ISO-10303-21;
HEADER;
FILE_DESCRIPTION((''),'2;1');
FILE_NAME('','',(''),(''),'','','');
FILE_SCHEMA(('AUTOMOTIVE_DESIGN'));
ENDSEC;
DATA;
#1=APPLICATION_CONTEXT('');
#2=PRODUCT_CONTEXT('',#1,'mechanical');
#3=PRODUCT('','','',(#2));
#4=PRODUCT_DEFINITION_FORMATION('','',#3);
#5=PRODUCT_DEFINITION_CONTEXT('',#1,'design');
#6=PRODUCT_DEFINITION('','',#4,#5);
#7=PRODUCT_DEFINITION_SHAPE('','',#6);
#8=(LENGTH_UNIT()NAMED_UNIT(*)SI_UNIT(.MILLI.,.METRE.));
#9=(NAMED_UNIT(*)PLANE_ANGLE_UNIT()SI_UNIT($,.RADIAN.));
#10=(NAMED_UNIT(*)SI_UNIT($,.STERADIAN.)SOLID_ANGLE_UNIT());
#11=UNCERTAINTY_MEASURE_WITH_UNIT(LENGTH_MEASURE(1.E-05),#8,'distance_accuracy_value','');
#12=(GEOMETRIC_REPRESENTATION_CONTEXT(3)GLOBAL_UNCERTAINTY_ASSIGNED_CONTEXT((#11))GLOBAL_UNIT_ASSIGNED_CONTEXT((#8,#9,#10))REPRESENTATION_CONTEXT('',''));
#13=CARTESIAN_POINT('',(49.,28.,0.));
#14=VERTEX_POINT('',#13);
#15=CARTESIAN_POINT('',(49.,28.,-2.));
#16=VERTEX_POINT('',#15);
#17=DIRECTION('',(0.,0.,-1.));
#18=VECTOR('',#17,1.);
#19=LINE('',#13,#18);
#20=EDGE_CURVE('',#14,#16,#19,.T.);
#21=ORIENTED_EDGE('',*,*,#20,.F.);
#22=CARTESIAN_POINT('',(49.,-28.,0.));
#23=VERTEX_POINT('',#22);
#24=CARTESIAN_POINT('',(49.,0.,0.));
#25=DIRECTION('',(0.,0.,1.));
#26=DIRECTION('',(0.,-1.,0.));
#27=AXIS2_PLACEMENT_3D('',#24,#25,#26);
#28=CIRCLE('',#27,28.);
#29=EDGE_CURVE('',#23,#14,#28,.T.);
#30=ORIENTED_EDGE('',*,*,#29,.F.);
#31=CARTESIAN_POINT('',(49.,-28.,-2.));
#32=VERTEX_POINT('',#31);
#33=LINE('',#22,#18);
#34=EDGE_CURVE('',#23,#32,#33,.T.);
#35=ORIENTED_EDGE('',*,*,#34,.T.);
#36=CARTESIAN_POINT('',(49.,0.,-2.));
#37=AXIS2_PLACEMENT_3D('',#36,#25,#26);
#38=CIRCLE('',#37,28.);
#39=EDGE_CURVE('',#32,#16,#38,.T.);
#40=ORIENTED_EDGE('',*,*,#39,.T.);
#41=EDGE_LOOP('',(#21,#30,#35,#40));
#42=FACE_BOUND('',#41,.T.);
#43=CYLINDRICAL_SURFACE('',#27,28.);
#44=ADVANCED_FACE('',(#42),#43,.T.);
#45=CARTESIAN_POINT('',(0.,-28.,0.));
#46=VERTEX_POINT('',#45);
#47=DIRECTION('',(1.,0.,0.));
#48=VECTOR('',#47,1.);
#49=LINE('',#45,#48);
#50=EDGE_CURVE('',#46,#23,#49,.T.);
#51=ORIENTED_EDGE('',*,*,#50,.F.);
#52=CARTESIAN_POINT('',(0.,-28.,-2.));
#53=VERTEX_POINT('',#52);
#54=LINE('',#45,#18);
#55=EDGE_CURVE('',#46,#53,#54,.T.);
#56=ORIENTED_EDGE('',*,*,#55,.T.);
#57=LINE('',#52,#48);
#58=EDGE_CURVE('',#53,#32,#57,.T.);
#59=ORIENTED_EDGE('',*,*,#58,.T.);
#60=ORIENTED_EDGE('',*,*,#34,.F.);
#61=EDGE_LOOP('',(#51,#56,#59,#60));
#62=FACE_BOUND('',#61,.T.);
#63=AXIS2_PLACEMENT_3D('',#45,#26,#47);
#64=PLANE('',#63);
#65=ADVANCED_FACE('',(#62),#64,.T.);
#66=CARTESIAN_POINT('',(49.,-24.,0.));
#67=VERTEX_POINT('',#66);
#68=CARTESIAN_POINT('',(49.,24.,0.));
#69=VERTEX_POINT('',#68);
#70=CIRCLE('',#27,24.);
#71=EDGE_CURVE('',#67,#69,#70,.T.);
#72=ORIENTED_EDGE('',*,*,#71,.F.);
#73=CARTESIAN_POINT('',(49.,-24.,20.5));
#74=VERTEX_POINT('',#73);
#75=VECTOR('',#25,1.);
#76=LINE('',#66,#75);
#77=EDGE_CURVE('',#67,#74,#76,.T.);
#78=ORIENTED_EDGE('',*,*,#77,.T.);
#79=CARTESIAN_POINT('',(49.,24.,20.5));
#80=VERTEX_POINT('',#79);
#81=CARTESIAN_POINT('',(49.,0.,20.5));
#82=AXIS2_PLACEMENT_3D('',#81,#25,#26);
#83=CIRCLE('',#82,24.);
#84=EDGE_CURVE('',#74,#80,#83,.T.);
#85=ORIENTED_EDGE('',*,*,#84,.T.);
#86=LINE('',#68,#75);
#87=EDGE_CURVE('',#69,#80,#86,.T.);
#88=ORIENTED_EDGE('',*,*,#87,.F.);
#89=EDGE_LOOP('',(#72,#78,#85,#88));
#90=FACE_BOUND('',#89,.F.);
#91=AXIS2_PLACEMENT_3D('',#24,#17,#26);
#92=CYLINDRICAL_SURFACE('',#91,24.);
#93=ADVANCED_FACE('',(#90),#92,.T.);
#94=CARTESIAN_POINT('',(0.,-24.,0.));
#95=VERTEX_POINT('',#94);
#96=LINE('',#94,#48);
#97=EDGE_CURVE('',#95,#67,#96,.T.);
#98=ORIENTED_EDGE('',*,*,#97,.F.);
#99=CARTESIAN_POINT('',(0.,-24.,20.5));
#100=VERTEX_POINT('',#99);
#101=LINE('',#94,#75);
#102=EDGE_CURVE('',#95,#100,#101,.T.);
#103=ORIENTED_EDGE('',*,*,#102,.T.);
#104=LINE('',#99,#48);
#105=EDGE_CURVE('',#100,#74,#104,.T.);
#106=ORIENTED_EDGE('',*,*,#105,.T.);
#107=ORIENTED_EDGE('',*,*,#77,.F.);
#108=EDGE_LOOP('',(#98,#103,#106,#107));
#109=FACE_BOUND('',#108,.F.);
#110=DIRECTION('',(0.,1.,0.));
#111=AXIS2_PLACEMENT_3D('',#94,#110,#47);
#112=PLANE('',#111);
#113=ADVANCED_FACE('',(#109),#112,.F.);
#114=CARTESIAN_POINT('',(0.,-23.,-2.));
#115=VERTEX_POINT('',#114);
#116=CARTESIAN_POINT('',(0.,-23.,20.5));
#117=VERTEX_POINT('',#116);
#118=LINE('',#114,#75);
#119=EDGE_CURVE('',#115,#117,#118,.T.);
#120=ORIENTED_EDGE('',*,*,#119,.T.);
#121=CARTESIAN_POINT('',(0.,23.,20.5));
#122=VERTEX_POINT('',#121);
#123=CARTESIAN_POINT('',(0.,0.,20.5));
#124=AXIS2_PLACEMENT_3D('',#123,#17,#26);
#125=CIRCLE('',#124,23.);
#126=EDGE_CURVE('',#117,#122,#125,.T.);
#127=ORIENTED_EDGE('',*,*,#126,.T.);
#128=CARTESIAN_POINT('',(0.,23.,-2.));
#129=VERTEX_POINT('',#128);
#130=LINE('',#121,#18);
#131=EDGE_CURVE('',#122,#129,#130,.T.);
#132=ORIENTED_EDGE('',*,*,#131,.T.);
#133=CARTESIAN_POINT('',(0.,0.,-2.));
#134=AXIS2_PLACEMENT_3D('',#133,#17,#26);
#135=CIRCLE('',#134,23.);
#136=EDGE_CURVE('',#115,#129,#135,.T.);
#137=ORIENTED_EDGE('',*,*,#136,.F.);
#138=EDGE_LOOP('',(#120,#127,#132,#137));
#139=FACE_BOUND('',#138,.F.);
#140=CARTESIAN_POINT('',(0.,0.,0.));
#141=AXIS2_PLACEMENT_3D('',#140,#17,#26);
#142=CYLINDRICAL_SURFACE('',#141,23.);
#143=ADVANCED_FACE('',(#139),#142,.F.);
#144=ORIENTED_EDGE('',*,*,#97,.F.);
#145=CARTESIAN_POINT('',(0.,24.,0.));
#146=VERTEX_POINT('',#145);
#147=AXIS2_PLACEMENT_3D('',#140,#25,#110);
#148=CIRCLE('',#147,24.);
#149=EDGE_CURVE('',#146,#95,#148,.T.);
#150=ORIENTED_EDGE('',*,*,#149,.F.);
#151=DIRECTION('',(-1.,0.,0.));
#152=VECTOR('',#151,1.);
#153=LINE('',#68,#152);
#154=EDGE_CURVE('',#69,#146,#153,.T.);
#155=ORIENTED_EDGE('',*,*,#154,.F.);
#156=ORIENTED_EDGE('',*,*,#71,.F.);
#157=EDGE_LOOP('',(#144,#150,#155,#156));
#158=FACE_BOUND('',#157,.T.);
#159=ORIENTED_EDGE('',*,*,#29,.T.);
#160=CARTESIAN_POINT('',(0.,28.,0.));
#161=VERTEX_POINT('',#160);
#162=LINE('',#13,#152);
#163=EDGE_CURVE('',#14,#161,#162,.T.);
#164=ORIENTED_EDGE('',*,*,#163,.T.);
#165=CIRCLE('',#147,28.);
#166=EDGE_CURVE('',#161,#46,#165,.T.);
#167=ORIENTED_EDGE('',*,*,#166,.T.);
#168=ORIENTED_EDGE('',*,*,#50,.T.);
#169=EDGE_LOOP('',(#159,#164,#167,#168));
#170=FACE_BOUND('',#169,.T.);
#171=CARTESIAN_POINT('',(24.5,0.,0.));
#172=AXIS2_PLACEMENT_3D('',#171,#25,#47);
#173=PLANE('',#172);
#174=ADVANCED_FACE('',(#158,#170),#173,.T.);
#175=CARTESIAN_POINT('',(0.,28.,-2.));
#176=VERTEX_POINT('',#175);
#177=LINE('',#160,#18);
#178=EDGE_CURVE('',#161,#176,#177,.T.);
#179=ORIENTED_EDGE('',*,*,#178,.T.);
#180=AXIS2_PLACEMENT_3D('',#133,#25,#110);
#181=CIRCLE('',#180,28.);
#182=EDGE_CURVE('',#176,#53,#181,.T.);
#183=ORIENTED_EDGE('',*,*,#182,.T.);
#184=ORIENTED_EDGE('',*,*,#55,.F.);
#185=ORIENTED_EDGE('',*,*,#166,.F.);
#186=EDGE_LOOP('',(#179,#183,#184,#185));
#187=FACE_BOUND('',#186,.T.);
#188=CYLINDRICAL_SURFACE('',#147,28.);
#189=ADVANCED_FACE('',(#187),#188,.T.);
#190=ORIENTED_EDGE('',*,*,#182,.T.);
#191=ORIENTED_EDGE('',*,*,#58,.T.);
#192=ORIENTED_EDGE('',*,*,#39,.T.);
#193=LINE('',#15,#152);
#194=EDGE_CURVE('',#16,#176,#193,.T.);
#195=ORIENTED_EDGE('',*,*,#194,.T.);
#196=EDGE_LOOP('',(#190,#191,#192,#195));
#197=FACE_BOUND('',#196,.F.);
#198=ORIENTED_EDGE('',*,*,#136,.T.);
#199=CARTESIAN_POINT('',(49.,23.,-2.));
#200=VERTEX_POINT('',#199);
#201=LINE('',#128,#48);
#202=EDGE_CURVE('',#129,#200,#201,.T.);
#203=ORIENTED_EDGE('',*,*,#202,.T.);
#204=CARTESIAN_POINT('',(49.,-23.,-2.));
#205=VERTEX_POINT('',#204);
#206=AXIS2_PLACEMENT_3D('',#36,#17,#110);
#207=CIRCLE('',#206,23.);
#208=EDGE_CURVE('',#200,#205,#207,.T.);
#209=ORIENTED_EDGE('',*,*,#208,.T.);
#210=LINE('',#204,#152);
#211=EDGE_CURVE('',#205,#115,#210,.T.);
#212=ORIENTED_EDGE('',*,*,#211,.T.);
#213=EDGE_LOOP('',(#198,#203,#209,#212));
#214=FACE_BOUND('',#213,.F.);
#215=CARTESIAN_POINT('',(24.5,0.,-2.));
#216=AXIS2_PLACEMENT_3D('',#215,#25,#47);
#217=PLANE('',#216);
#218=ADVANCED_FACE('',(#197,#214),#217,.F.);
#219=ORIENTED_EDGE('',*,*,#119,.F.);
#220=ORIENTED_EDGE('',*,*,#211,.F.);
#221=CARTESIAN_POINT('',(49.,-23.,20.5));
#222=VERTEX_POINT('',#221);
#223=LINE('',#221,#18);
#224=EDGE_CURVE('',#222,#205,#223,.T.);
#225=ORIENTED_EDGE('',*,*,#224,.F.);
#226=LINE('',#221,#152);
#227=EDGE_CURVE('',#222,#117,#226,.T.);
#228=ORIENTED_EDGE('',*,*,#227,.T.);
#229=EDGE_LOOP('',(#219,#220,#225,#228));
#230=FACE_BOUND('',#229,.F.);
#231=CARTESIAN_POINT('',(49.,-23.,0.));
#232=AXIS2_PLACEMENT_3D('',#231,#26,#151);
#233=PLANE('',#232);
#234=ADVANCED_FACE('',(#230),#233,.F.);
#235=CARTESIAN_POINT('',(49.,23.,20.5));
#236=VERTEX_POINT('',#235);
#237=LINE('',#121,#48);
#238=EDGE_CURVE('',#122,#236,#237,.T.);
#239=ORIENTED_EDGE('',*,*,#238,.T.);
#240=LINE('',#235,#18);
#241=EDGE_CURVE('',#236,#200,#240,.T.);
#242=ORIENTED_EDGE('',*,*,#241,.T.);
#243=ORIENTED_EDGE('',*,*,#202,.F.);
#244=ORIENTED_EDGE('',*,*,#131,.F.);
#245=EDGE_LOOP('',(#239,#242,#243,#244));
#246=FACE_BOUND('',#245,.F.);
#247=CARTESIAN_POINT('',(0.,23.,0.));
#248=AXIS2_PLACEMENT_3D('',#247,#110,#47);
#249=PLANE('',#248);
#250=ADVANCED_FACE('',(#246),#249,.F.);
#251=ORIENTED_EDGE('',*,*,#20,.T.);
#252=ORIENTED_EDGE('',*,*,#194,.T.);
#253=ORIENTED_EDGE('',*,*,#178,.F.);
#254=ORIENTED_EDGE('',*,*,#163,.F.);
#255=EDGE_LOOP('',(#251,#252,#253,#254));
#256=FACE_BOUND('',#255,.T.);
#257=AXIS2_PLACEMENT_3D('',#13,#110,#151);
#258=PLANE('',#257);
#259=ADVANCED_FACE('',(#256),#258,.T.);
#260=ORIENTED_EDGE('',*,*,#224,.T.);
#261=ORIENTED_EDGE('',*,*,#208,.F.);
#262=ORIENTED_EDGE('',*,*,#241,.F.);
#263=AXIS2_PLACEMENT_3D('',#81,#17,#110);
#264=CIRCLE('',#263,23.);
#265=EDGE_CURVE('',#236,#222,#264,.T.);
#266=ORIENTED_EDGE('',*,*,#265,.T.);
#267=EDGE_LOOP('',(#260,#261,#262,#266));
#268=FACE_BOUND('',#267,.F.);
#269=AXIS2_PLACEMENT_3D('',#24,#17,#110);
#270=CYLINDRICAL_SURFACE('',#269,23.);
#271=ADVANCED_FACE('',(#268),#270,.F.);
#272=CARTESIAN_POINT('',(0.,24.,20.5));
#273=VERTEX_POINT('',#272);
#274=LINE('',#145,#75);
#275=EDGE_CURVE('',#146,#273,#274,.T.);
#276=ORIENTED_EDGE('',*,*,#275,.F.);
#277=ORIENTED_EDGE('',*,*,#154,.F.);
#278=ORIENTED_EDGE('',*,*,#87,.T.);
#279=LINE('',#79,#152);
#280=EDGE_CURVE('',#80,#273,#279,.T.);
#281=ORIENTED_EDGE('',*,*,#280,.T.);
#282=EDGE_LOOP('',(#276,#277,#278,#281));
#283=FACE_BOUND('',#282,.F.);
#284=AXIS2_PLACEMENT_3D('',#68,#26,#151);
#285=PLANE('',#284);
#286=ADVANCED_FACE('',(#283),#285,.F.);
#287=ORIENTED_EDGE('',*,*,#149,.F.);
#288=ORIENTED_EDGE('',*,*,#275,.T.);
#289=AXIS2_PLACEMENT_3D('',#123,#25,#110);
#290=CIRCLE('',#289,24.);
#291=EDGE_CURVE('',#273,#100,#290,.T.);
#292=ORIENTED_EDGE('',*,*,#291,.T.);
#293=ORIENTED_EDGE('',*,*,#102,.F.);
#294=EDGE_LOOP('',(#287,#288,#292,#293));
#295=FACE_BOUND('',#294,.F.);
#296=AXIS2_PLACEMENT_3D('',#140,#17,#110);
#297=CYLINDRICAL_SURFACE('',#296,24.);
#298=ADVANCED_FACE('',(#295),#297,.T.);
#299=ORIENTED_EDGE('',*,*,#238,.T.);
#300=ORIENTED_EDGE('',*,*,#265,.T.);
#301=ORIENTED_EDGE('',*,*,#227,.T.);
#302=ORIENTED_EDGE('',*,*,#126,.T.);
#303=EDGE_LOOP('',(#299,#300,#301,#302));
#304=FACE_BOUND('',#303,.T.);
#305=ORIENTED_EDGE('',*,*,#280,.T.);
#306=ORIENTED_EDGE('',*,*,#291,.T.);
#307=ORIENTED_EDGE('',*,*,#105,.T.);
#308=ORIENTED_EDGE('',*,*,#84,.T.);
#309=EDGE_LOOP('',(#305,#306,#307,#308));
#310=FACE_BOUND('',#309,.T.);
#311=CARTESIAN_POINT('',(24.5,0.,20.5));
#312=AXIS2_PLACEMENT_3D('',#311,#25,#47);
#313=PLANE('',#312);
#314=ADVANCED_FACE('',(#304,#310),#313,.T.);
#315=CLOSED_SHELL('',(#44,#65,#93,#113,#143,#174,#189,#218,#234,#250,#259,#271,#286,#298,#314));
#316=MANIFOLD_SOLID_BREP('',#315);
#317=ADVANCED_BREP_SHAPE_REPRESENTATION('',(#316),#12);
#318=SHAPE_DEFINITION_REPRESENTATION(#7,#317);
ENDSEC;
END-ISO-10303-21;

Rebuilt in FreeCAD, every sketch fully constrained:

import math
import FreeCAD as App
import Part
import Sketcher

doc = App.newDocument("Part")
body = doc.addObject("PartDesign::Body", "Body")

sketch1 = body.newObject("Sketcher::SketchObject", "Sketch")
sketch1.AttachmentSupport = (doc.getObject("XY_Plane"), [""])
sketch1.MapMode = "FlatFace"
sketch1.addGeometry(Part.LineSegment(App.Vector(49, 28, 0), App.Vector(0, 28, 0)), False)
sketch1.addGeometry(Part.ArcOfCircle(Part.Circle(App.Vector(0, 0, 0), App.Vector(0, 0, 1), 28), math.radians(90), math.radians(270)), False)
sketch1.addGeometry(Part.LineSegment(App.Vector(0, -28, 0), App.Vector(49, -28, 0)), False)
sketch1.addGeometry(Part.ArcOfCircle(Part.Circle(App.Vector(49, 0, 0), App.Vector(0, 0, 1), 28), math.radians(-90), math.radians(90)), False)
sketch1.addGeometry(Part.LineSegment(App.Vector(49, -23, 0), App.Vector(0, -23, 0)), False)
sketch1.addGeometry(Part.ArcOfCircle(Part.Circle(App.Vector(0, 0, 0), App.Vector(0, 0, 1), 23), math.radians(90), math.radians(270)), False)
sketch1.addGeometry(Part.LineSegment(App.Vector(0, 23, 0), App.Vector(49, 23, 0)), False)
sketch1.addGeometry(Part.ArcOfCircle(Part.Circle(App.Vector(49, 0, 0), App.Vector(0, 0, 1), 23), math.radians(-90), math.radians(90)), False)
sketch1.addConstraint(Sketcher.Constraint("Tangent", 0, 2, 1, 1))
sketch1.addConstraint(Sketcher.Constraint("Tangent", 1, 2, 2, 1))
sketch1.addConstraint(Sketcher.Constraint("Tangent", 2, 2, 3, 1))
sketch1.addConstraint(Sketcher.Constraint("Tangent", 3, 2, 0, 1))
sketch1.addConstraint(Sketcher.Constraint("Tangent", 4, 2, 5, 2))
sketch1.addConstraint(Sketcher.Constraint("Tangent", 5, 1, 6, 1))
sketch1.addConstraint(Sketcher.Constraint("Tangent", 6, 2, 7, 2))
sketch1.addConstraint(Sketcher.Constraint("Tangent", 7, 1, 4, 1))
sketch1.addConstraint(Sketcher.Constraint("Horizontal", 0))
sketch1.addConstraint(Sketcher.Constraint("Horizontal", 2))
sketch1.addConstraint(Sketcher.Constraint("Horizontal", 4))
sketch1.addConstraint(Sketcher.Constraint("Horizontal", 6))
sketch1.addConstraint(Sketcher.Constraint("Coincident", 1, 3, -1, 1))
sketch1.addConstraint(Sketcher.Constraint("Coincident", 5, 3, -1, 1))
sketch1.addConstraint(Sketcher.Constraint("Vertical", 7, 3, 2, 2))
sketch1.addConstraint(Sketcher.Constraint("Radius", 1, 28.0))
sketch1.addConstraint(Sketcher.Constraint("Radius", 5, 23.0))
sketch1.addConstraint(Sketcher.Constraint("DistanceX", 0, 2, 0, 1, 49.0))
pad1 = body.newObject("PartDesign::Pad", "Pad")
pad1.Profile = sketch1
pad1.Length = 2
pad1.Reversed = True

sketch2 = body.newObject("Sketcher::SketchObject", "Sketch001")
sketch2.AttachmentSupport = (doc.getObject("XY_Plane"), [""])
sketch2.MapMode = "FlatFace"
sketch2.addGeometry(Part.LineSegment(App.Vector(49, 24, 0), App.Vector(0, 24, 0)), False)
sketch2.addGeometry(Part.ArcOfCircle(Part.Circle(App.Vector(0, 0, 0), App.Vector(0, 0, 1), 24), math.radians(90), math.radians(270)), False)
sketch2.addGeometry(Part.LineSegment(App.Vector(0, -24, 0), App.Vector(49, -24, 0)), False)
sketch2.addGeometry(Part.ArcOfCircle(Part.Circle(App.Vector(49, 0, 0), App.Vector(0, 0, 1), 24), math.radians(-90), math.radians(90)), False)
sketch2.addGeometry(Part.LineSegment(App.Vector(49, -23, 0), App.Vector(0, -23, 0)), False)
sketch2.addGeometry(Part.ArcOfCircle(Part.Circle(App.Vector(0, 0, 0), App.Vector(0, 0, 1), 23), math.radians(90), math.radians(270)), False)
sketch2.addGeometry(Part.LineSegment(App.Vector(0, 23, 0), App.Vector(49, 23, 0)), False)
sketch2.addGeometry(Part.ArcOfCircle(Part.Circle(App.Vector(49, 0, 0), App.Vector(0, 0, 1), 23), math.radians(-90), math.radians(90)), False)
sketch2.addConstraint(Sketcher.Constraint("Tangent", 0, 2, 1, 1))
sketch2.addConstraint(Sketcher.Constraint("Tangent", 1, 2, 2, 1))
sketch2.addConstraint(Sketcher.Constraint("Tangent", 2, 2, 3, 1))
sketch2.addConstraint(Sketcher.Constraint("Tangent", 3, 2, 0, 1))
sketch2.addConstraint(Sketcher.Constraint("Tangent", 4, 2, 5, 2))
sketch2.addConstraint(Sketcher.Constraint("Tangent", 5, 1, 6, 1))
sketch2.addConstraint(Sketcher.Constraint("Tangent", 6, 2, 7, 2))
sketch2.addConstraint(Sketcher.Constraint("Tangent", 7, 1, 4, 1))
sketch2.addConstraint(Sketcher.Constraint("Horizontal", 0))
sketch2.addConstraint(Sketcher.Constraint("Horizontal", 2))
sketch2.addConstraint(Sketcher.Constraint("Horizontal", 4))
sketch2.addConstraint(Sketcher.Constraint("Horizontal", 6))
sketch2.addConstraint(Sketcher.Constraint("Coincident", 1, 3, -1, 1))
sketch2.addConstraint(Sketcher.Constraint("Coincident", 5, 3, -1, 1))
sketch2.addConstraint(Sketcher.Constraint("Vertical", 7, 3, 2, 2))
sketch2.addConstraint(Sketcher.Constraint("Radius", 1, 24.0))
sketch2.addConstraint(Sketcher.Constraint("Radius", 5, 23.0))
sketch2.addConstraint(Sketcher.Constraint("DistanceX", 0, 2, 0, 1, 49.0))
pad2 = body.newObject("PartDesign::Pad", "Pad001")
pad2.Profile = sketch2
pad2.Length = 20.5

doc.recompute()
